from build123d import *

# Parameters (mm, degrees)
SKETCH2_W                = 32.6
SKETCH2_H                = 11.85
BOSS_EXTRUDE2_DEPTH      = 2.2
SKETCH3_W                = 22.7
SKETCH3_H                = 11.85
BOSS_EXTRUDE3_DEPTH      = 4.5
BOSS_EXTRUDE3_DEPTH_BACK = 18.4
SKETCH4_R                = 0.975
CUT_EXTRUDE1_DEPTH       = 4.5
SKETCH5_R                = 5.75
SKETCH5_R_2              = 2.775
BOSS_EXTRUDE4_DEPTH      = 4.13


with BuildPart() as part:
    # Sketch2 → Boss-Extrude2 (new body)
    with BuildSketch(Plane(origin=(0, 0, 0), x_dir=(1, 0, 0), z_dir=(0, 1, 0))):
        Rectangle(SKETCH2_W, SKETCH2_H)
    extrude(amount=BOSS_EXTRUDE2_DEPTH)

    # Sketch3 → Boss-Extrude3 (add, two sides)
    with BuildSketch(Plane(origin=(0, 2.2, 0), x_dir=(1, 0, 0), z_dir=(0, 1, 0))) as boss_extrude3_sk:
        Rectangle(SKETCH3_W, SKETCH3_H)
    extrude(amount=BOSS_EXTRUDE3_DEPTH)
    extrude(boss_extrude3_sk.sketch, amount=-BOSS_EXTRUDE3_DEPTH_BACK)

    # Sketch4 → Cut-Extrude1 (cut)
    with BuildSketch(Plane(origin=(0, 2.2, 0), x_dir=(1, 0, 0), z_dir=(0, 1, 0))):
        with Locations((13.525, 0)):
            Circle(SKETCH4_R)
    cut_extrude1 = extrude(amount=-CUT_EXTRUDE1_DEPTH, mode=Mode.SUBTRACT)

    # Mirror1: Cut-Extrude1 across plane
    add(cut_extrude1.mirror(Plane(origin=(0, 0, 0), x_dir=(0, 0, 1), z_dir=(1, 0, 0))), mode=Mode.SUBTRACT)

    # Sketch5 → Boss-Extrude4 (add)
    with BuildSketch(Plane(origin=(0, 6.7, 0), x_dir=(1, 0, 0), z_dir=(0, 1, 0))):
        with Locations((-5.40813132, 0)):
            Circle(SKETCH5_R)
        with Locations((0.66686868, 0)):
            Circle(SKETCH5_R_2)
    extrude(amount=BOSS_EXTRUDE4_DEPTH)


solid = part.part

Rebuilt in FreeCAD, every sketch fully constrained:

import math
import FreeCAD as App
import Part
import Sketcher
from FreeCAD import Vector
Q = App.Units.Quantity

doc = App.newDocument("Part")
body = doc.addObject("PartDesign::Body", "Body")

# Sketch on XZ plane
sketch1 = doc.addObject("Sketcher::SketchObject", "Sketch")
body.addObject(sketch1)
sketch1.AttachmentSupport = (doc.XZ_Plane, [""])
sketch1.MapMode = "FlatFace"
sketch1.addGeometry(Part.LineSegment(Vector(-16, -6, 0), Vector(-16, 6, 0)), False)
sketch1.addGeometry(Part.LineSegment(Vector(-16, 6, 0), Vector(16, 6, 0)), False)
sketch1.addGeometry(Part.LineSegment(Vector(16, 6, 0), Vector(16, -6, 0)), False)
sketch1.addGeometry(Part.LineSegment(Vector(16, -6, 0), Vector(-16, -6, 0)), False)
sketch1.addConstraint(Sketcher.Constraint("Coincident", 0, 2, 1, 1))
sketch1.addConstraint(Sketcher.Constraint("Coincident", 1, 2, 2, 1))
sketch1.addConstraint(Sketcher.Constraint("Coincident", 2, 2, 3, 1))
sketch1.addConstraint(Sketcher.Constraint("Coincident", 3, 2, 0, 1))
sketch1.addConstraint(Sketcher.Constraint("Vertical", 0))
sketch1.addConstraint(Sketcher.Constraint("Horizontal", 1))
sketch1.addConstraint(Sketcher.Constraint("Vertical", 2))
sketch1.addConstraint(Sketcher.Constraint("Horizontal", 3))
sketch1.addConstraint(Sketcher.Constraint("Symmetric", 0, 2, 2, 2, -1, 1))
sketch1.addConstraint(Sketcher.Constraint("DistanceX", 1, 1, 1, 2, Q("32.6 mm")))
sketch1.addConstraint(Sketcher.Constraint("DistanceY", 0, 1, 0, 2, Q("11.85 mm")))
pad1 = doc.addObject("PartDesign::Pad", "Pad")
body.addObject(pad1)
pad1.Profile = sketch1
pad1.Length = 2.2
pad1.Reversed = True

# Sketch on XZ plane
sketch2 = doc.addObject("Sketcher::SketchObject", "Sketch001")
body.addObject(sketch2)
sketch2.AttachmentSupport = (doc.XZ_Plane, [""])
sketch2.MapMode = "FlatFace"
sketch2.AttachmentOffset = App.Placement(Vector(0, 0, -2.2), App.Rotation())
sketch2.addGeometry(Part.LineSegment(Vector(-11, -6, 0), Vector(-11, 6, 0)), False)
sketch2.addGeometry(Part.LineSegment(Vector(-11, 6, 0), Vector(11, 6, 0)), False)
sketch2.addGeometry(Part.LineSegment(Vector(11, 6, 0), Vector(11, -6, 0)), False)
sketch2.addGeometry(Part.LineSegment(Vector(11, -6, 0), Vector(-11, -6, 0)), False)
sketch2.addConstraint(Sketcher.Constraint("Coincident", 0, 2, 1, 1))
sketch2.addConstraint(Sketcher.Constraint("Coincident", 1, 2, 2, 1))
sketch2.addConstraint(Sketcher.Constraint("Coincident", 2, 2, 3, 1))
sketch2.addConstraint(Sketcher.Constraint("Coincident", 3, 2, 0, 1))
sketch2.addConstraint(Sketcher.Constraint("Vertical", 0))
sketch2.addConstraint(Sketcher.Constraint("Horizontal", 1))
sketch2.addConstraint(Sketcher.Constraint("Vertical", 2))
sketch2.addConstraint(Sketcher.Constraint("Horizontal", 3))
sketch2.addConstraint(Sketcher.Constraint("Symmetric", 0, 2, 2, 2, -1, 1))
sketch2.addConstraint(Sketcher.Constraint("DistanceX", 1, 1, 1, 2, Q("22.7 mm")))
sketch2.addConstraint(Sketcher.Constraint("DistanceY", 0, 1, 0, 2, Q("11.85 mm")))
pad2 = doc.addObject("PartDesign::Pad", "Pad001")
body.addObject(pad2)
pad2.Profile = sketch2
pad2.Type = "TwoLengths"
pad2.Length = 4.5
pad2.Length2 = 18.4
pad2.Reversed = True

# Sketch on XZ plane
sketch3 = doc.addObject("Sketcher::SketchObject", "Sketch002")
body.addObject(sketch3)
sketch3.AttachmentSupport = (doc.XZ_Plane, [""])
sketch3.MapMode = "FlatFace"
sketch3.AttachmentOffset = App.Placement(Vector(0, 0, -2.2), App.Rotation())
sketch3.addGeometry(Part.Circle(Vector(13.5, 0, 0), Vector(0, 0, 1), 1), False)
sketch3.addConstraint(Sketcher.Constraint("PointOnObject", 0, 3, -1))
sketch3.addConstraint(Sketcher.Constraint("Diameter", 0, Q("1.95 mm")))
sketch3.addConstraint(Sketcher.Constraint("DistanceX", -1, 1, 0, 3, Q("13.525 mm")))
pocket1 = doc.addObject("PartDesign::Pocket", "Pocket")
body.addObject(pocket1)
pocket1.Profile = sketch3
pocket1.Length = 4.5
pocket1.Reversed = True
doc.recompute()

mirrored = doc.addObject("PartDesign::Mirrored", "Mirrored")
body.addObject(mirrored)
mirrored.Originals = [pocket1]
mirrored.MirrorPlane = (doc.YZ_Plane, [""])
body.Tip = mirrored

# Sketch on XZ plane
sketch4 = doc.addObject("Sketcher::SketchObject", "Sketch003")
body.addObject(sketch4)
sketch4.AttachmentSupport = (doc.XZ_Plane, [""])
sketch4.MapMode = "FlatFace"
sketch4.AttachmentOffset = App.Placement(Vector(0, 0, -6.7), App.Rotation())
sketch4.addGeometry(Part.ArcOfCircle(Part.Circle(Vector(0.7, 0, 0), Vector(0, 0, 1), 2.8), math.radians(-110), math.radians(110)), False)
sketch4.addGeometry(Part.ArcOfCircle(Part.Circle(Vector(-5.4, 0, 0), Vector(0, 0, 1), 5.8), math.radians(27), math.radians(333)), False)
sketch4.addConstraint(Sketcher.Constraint("Coincident", 0, 1, 1, 2))
sketch4.addConstraint(Sketcher.Constraint("Coincident", 1, 1, 0, 2))
sketch4.addConstraint(Sketcher.Constraint("Symmetric", 0, 1, 1, 1, -1))
sketch4.addConstraint(Sketcher.Constraint("Radius", 1, Q("5.75 mm")))
sketch4.addConstraint(Sketcher.Constraint("Radius", 0, Q("2.775 mm")))
sketch4.addConstraint(Sketcher.Constraint("DistanceX", 1, 3, 0, 3, Q("6.075 mm")))
sketch4.addConstraint(Sketcher.Constraint("DistanceX", -1, 1, 0, 3, Q("0.666869 mm")))
pad3 = doc.addObject("PartDesign::Pad", "Pad002")
body.addObject(pad3)
pad3.Profile = sketch4
pad3.Length = 4.13
pad3.Reversed = True

doc.recompute()
